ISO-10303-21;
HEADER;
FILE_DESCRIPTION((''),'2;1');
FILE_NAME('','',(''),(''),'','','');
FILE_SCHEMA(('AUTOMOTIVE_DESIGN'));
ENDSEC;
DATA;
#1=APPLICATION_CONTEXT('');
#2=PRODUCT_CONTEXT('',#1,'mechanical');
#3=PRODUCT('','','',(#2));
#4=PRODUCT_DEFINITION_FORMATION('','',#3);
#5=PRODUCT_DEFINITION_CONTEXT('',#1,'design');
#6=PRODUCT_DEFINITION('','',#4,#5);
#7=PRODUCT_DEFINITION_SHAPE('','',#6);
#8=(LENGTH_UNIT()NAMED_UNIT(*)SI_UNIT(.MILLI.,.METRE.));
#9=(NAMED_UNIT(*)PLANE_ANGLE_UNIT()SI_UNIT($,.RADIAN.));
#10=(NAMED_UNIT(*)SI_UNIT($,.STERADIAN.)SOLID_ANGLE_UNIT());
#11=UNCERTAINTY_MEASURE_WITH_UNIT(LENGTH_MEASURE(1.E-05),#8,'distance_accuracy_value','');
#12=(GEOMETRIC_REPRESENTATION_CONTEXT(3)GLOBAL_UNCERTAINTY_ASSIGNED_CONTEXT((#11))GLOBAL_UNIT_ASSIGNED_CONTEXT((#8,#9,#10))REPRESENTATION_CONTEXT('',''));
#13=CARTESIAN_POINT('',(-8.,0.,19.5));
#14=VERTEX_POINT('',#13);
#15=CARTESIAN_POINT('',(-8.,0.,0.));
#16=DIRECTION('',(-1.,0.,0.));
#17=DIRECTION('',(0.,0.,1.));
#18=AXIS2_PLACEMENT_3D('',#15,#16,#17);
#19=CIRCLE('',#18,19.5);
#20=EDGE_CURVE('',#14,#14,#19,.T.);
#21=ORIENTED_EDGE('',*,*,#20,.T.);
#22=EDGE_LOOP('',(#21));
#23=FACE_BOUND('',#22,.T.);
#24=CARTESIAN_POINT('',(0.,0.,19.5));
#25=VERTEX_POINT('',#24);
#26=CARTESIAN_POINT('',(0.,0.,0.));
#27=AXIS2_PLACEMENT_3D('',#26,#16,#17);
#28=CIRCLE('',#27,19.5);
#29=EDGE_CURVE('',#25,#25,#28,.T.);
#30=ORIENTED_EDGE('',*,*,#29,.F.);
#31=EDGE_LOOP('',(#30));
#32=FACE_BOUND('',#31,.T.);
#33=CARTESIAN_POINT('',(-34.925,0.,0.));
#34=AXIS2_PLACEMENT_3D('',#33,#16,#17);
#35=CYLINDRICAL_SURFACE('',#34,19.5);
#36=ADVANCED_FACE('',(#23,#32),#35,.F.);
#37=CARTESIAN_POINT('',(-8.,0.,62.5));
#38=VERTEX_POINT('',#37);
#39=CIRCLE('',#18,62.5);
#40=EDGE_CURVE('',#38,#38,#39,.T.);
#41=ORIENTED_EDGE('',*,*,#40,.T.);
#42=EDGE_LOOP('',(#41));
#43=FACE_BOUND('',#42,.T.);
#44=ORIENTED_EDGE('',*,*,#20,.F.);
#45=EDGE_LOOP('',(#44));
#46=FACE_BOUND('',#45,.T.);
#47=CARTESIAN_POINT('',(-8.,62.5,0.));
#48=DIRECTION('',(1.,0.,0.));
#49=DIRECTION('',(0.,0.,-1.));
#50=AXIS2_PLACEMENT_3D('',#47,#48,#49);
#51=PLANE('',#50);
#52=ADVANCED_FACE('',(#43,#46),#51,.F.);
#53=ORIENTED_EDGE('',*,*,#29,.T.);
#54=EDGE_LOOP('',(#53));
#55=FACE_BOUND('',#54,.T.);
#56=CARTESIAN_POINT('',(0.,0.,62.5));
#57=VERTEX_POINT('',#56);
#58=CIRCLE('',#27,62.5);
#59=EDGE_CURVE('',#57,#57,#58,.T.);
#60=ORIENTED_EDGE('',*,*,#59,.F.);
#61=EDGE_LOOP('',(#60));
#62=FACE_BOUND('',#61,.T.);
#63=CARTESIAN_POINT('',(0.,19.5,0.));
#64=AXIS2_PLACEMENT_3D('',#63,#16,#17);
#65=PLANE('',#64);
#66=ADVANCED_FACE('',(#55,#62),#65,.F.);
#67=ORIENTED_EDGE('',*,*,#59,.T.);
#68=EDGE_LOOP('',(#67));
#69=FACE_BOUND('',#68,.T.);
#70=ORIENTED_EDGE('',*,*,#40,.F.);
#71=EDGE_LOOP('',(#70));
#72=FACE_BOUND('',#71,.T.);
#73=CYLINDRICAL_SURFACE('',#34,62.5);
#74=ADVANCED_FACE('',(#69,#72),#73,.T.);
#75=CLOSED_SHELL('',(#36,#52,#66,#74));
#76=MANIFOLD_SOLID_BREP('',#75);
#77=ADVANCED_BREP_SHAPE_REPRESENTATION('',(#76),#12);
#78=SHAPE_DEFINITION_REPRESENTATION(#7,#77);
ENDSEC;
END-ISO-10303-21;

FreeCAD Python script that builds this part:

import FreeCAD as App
import Part
import Sketcher
from FreeCAD import Vector


def add_polygon(sketch, points):
    """Adds a closed chain of lines whose ends are joined by coincident constraints."""
    first, n = sketch.GeometryCount, len(points)
    for a, b in zip(points, points[1:] + points[:1]):
        sketch.addGeometry(Part.LineSegment(App.Vector(*a, 0), App.Vector(*b, 0)), False)
    for i in range(n):
        sketch.addConstraint(Sketcher.Constraint("Coincident", first + i, 2, first + (i + 1) % n, 1))

doc = App.newDocument("Part")
body = doc.addObject("PartDesign::Body", "Body")

# Sketch on XY plane
sketch1 = body.newObject("Sketcher::SketchObject", "Sketch")
sketch1.AttachmentSupport = (doc.getObject("XY_Plane"), [""])
sketch1.MapMode = "FlatFace"
add_polygon(sketch1, [(-8, 62), (-8, 20), (0, 20), (0, 62)])  # lines 0-3
sketch1.addConstraint([
    Sketcher.Constraint("Vertical", 0),
    Sketcher.Constraint("Horizontal", 1),
    Sketcher.Constraint("Vertical", 2),
    Sketcher.Constraint("Horizontal", 3),
    Sketcher.Constraint("PointOnObject", 1, 2, -2),
    Sketcher.Constraint("DistanceX", 1, 1, 1, 2, 8.0),
    Sketcher.Constraint("DistanceY", 0, 2, 0, 1, 43.0),
    Sketcher.Constraint("DistanceY", -1, 1, 0, 2, 19.5),
])
revolution = body.newObject("PartDesign::Revolution", "Revolution")
revolution.Profile = sketch1
revolution.ReferenceAxis = (sketch1, ["H_Axis"])
revolution.Angle = 360

doc.recompute()
